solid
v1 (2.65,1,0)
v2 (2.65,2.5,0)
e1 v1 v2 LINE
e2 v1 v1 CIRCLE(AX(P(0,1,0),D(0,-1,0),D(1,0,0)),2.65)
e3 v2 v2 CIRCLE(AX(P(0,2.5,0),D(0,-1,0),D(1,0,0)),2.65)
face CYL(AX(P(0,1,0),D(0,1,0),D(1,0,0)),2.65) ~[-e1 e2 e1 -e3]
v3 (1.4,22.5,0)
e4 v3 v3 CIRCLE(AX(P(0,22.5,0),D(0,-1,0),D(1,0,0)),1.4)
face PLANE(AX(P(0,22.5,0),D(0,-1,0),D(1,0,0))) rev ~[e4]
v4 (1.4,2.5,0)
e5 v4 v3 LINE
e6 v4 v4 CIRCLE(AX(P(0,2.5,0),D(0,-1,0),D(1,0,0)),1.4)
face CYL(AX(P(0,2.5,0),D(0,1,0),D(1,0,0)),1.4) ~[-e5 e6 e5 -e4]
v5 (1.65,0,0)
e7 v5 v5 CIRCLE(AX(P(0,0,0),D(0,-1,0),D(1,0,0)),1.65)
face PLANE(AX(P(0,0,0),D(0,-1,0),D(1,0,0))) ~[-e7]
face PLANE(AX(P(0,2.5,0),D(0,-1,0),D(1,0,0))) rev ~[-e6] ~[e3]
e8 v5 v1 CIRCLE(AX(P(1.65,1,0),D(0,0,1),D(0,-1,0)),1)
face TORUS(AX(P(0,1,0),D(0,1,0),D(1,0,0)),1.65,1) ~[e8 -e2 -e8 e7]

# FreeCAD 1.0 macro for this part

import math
import FreeCAD as App
import Part
import Sketcher

doc = App.newDocument("Part")
body = doc.addObject("PartDesign::Body", "Body")

sketch1 = body.newObject("Sketcher::SketchObject", "Sketch")
sketch1.AttachmentSupport = (doc.getObject("XY_Plane"), [""])
sketch1.MapMode = "FlatFace"
sketch1.addGeometry(Part.LineSegment(App.Vector(0, 22.5, 0), App.Vector(0, 0, 0)), False)
sketch1.addGeometry(Part.LineSegment(App.Vector(0, 0, 0), App.Vector(1.6, 0, 0)), False)
sketch1.addGeometry(Part.ArcOfCircle(Part.Circle(App.Vector(1.6, 1, 0), App.Vector(0, 0, 1), 1), math.radians(-90), math.radians(0)), False)
sketch1.addGeometry(Part.LineSegment(App.Vector(2.6, 1, 0), App.Vector(2.6, 2.5, 0)), False)
sketch1.addGeometry(Part.LineSegment(App.Vector(2.6, 2.5, 0), App.Vector(1.4, 2.5, 0)), False)
sketch1.addGeometry(Part.LineSegment(App.Vector(1.4, 2.5, 0), App.Vector(1.4, 22.5, 0)), False)
sketch1.addGeometry(Part.LineSegment(App.Vector(1.4, 22.5, 0), App.Vector(0, 22.5, 0)), False)
sketch1.addConstraint(Sketcher.Constraint("Coincident", 0, 2, 1, 1))
sketch1.addConstraint(Sketcher.Constraint("Tangent", 1, 2, 2, 1))
sketch1.addConstraint(Sketcher.Constraint("Tangent", 2, 2, 3, 1))
sketch1.addConstraint(Sketcher.Constraint("Coincident", 3, 2, 4, 1))
sketch1.addConstraint(Sketcher.Constraint("Coincident", 4, 2, 5, 1))
sketch1.addConstraint(Sketcher.Constraint("Coincident", 5, 2, 6, 1))
sketch1.addConstraint(Sketcher.Constraint("Coincident", 6, 2, 0, 1))
sketch1.addConstraint(Sketcher.Constraint("Vertical", 0))
sketch1.addConstraint(Sketcher.Constraint("Horizontal", 1))
sketch1.addConstraint(Sketcher.Constraint("Vertical", 3))
sketch1.addConstraint(Sketcher.Constraint("Horizontal", 4))
sketch1.addConstraint(Sketcher.Constraint("Vertical", 5))
sketch1.addConstraint(Sketcher.Constraint("Horizontal", 6))
sketch1.addConstraint(Sketcher.Constraint("Coincident", 0, 2, -1, 1))
sketch1.addConstraint(Sketcher.Constraint("Radius", 2, 1.0))
sketch1.addConstraint(Sketcher.Constraint("DistanceY", 5, 1, 5, 2, 20.0))
sketch1.addConstraint(Sketcher.Constraint("DistanceY", -1, 1, 3, 2, 2.5))
sketch1.addConstraint(Sketcher.Constraint("DistanceX", 6, 2, 6, 1, 1.4))
sketch1.addConstraint(Sketcher.Constraint("DistanceX", 1, 1, 1, 2, 1.65))
revolution = body.newObject("PartDesign::Revolution", "Revolution")
revolution.Profile = sketch1
revolution.ReferenceAxis = (sketch1, ["V_Axis"])
revolution.Angle = 360

doc.recompute()
